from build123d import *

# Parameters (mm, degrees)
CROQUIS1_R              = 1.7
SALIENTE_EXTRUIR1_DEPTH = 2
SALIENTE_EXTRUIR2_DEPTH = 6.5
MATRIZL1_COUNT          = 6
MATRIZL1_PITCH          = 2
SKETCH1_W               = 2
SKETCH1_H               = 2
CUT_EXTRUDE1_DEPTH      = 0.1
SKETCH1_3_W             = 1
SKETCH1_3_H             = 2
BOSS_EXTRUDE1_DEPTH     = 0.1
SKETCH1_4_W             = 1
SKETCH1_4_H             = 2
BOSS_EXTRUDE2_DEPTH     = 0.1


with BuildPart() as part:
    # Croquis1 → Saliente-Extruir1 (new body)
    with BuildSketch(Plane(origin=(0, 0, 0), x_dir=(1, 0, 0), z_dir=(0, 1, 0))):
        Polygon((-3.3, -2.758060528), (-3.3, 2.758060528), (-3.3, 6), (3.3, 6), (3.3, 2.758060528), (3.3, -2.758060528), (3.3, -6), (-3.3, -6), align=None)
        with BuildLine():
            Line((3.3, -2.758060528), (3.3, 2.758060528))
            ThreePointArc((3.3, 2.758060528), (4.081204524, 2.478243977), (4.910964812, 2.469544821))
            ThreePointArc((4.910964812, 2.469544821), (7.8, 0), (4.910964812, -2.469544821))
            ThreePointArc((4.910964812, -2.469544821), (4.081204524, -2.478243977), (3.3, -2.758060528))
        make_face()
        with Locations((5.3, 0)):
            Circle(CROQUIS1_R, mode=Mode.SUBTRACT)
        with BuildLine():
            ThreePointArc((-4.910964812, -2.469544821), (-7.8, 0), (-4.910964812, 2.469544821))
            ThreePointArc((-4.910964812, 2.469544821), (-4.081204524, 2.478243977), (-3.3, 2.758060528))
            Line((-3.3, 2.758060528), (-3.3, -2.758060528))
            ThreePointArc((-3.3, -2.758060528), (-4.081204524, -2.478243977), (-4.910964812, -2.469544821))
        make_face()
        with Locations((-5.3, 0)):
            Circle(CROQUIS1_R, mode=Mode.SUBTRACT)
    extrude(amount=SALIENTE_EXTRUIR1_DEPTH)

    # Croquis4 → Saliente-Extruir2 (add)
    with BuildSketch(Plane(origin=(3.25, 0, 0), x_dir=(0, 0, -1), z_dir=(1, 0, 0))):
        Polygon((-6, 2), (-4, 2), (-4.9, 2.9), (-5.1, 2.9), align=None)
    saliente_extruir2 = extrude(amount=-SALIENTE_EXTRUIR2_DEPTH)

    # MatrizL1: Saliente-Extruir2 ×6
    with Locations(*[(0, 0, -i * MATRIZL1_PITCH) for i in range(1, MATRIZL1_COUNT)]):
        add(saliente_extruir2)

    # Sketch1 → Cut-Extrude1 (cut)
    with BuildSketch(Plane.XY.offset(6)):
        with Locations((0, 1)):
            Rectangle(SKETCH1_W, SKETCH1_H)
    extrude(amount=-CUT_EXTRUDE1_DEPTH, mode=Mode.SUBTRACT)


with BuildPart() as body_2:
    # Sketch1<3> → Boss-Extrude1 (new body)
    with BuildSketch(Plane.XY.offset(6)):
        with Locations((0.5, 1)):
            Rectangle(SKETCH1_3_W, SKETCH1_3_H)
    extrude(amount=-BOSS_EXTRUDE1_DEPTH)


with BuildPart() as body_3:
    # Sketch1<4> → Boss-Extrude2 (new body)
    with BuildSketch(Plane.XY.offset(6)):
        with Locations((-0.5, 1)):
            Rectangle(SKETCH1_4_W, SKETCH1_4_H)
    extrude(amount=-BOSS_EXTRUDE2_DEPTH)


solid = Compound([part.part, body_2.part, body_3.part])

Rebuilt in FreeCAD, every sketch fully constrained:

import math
import FreeCAD as App
import Part
import Sketcher
from FreeCAD import Vector


def add_polygon(sketch, points):
    """Adds a closed chain of lines whose ends are joined by coincident constraints."""
    first, n = sketch.GeometryCount, len(points)
    for a, b in zip(points, points[1:] + points[:1]):
        sketch.addGeometry(Part.LineSegment(App.Vector(*a, 0), App.Vector(*b, 0)), False)
    for i in range(n):
        sketch.addConstraint(Sketcher.Constraint("Coincident", first + i, 2, first + (i + 1) % n, 1))

doc = App.newDocument("Part")
body = doc.addObject("PartDesign::Body", "Body")

sketch1 = doc.addObject("Sketcher::SketchObject", "Sketch")
body.addObject(sketch1)
sketch1.AttachmentSupport = (doc.XZ_Plane, [""])
sketch1.MapMode = "FlatFace"
sketch1.addGeometry([
    Part.LineSegment(Vector(-3.3, -6, 0), Vector(-3.3, -2.8, 0)),
    Part.ArcOfCircle(Part.Circle(Vector(-4.5, -4.9, 0), Vector(0, 0, 1), 2.5), math.radians(61), math.radians(99)),
    Part.ArcOfCircle(Part.Circle(Vector(-5.3, 0, 0), Vector(0, 0, 1), 2.5), math.radians(81), math.radians(279)),
    Part.ArcOfCircle(Part.Circle(Vector(-4.5, 4.9, 0), Vector(0, 0, 1), 2.5), math.radians(-99), math.radians(-61)),
    Part.LineSegment(Vector(-3.3, 2.8, 0), Vector(-3.3, 6, 0)),
    Part.LineSegment(Vector(-3.3, 6, 0), Vector(3.3, 6, 0)),
    Part.LineSegment(Vector(3.3, 6, 0), Vector(3.3, 2.8, 0)),
    Part.ArcOfCircle(Part.Circle(Vector(4.5, 4.9, 0), Vector(0, 0, 1), 2.5), math.radians(-119), math.radians(-81)),
    Part.ArcOfCircle(Part.Circle(Vector(5.3, 0, 0), Vector(0, 0, 1), 2.5), math.radians(-99), math.radians(99)),
    Part.ArcOfCircle(Part.Circle(Vector(4.5, -4.9, 0), Vector(0, 0, 1), 2.5), math.radians(81), math.radians(119)),
    Part.LineSegment(Vector(3.3, -2.8, 0), Vector(3.3, -6, 0)),
    Part.LineSegment(Vector(3.3, -6, 0), Vector(-3.3, -6, 0)),
    Part.Circle(Vector(5.3, 0, 0), Vector(0, 0, 1), 1.7),
    Part.Circle(Vector(-5.3, 0, 0), Vector(0, 0, 1), 1.7),
], False)
sketch1.addConstraint([
    Sketcher.Constraint("Coincident", 0, 2, 1, 1),
    Sketcher.Constraint("Tangent", 1, 2, 2, 2),
    Sketcher.Constraint("Tangent", 2, 1, 3, 1),
    Sketcher.Constraint("Coincident", 3, 2, 4, 1),
    Sketcher.Constraint("Coincident", 4, 2, 5, 1),
    Sketcher.Constraint("Coincident", 5, 2, 6, 1),
    Sketcher.Constraint("Coincident", 6, 2, 7, 1),
    Sketcher.Constraint("Tangent", 7, 2, 8, 2),
    Sketcher.Constraint("Tangent", 8, 1, 9, 1),
    Sketcher.Constraint("Coincident", 9, 2, 10, 1),
    Sketcher.Constraint("Coincident", 10, 2, 11, 1),
    Sketcher.Constraint("Coincident", 11, 2, 0, 1),
    Sketcher.Constraint("Vertical", 0),
    Sketcher.Constraint("Vertical", 4),
    Sketcher.Constraint("Horizontal", 5),
    Sketcher.Constraint("Vertical", 6),
    Sketcher.Constraint("Vertical", 10),
    Sketcher.Constraint("Horizontal", 11),
    Sketcher.Constraint("Coincident", 12, 3, 8, 3),
    Sketcher.Constraint("Coincident", 13, 3, 2, 3),
    Sketcher.Constraint("Equal", 1, 2),
    Sketcher.Constraint("Equal", 2, 3),
    Sketcher.Constraint("Equal", 3, 7),
    Sketcher.Constraint("Equal", 7, 8),
    Sketcher.Constraint("Equal", 8, 9),
    Sketcher.Constraint("Equal", 12, 13),
    Sketcher.Constraint("Symmetric", 1, 3, 7, 3, -1, 1),
    Sketcher.Constraint("Symmetric", 3, 3, 9, 3, -1, 1),
    Sketcher.Constraint("Symmetric", 4, 2, 10, 2, -1, 1),
    Sketcher.Constraint("Symmetric", 3, 3, 7, 3, -2),
    Sketcher.Constraint("Horizontal", 3, 2, 6, 2),
    Sketcher.Constraint("Horizontal", 0, 2, 9, 2),
    Sketcher.Constraint("Diameter", 12, 3.4),
    Sketcher.Constraint("Radius", 1, 2.5),
    Sketcher.Constraint("DistanceX", 5, 1, 5, 2, 6.6),
    Sketcher.Constraint("DistanceY", -1, 1, 4, 2, 6.0),
    Sketcher.Constraint("DistanceX", 2, 3, 0, 2, 2.0),
    Sketcher.Constraint("DistanceY", 0, 1, 0, 2, 3.241939),
])
pad1 = doc.addObject("PartDesign::Pad", "Pad")
body.addObject(pad1)
pad1.Profile = sketch1
pad1.Length = 2
pad1.Reversed = True

sketch2 = doc.addObject("Sketcher::SketchObject", "Sketch001")
body.addObject(sketch2)
sketch2.AttachmentSupport = (doc.YZ_Plane, [""])
sketch2.MapMode = "FlatFace"
sketch2.AttachmentOffset = App.Placement(Vector(0, 0, 3.25), App.Rotation())
add_polygon(sketch2, [(2, 6), (2, 4), (2.9, 4.9), (2.9, 5.1)])
sketch2.addConstraint([
    Sketcher.Constraint("Vertical", 0),
    Sketcher.Constraint("Vertical", 2),
    Sketcher.Constraint("Perpendicular", 1, 3),
    Sketcher.Constraint("Equal", 1, 3),
    Sketcher.Constraint("DistanceY", 0, 2, 0, 1, 2.0),
    Sketcher.Constraint("DistanceY", 2, 1, 2, 2, 0.2),
    Sketcher.Constraint("DistanceX", -1, 1, 0, 2, 2.0),
    Sketcher.Constraint("DistanceY", -1, 1, 0, 2, 4.0),
])
pad2 = doc.addObject("PartDesign::Pad", "Pad001")
body.addObject(pad2)
pad2.Profile = sketch2
pad2.Length = 6.5
pad2.Reversed = True
doc.recompute()

linearpattern = doc.addObject("PartDesign::LinearPattern", "LinearPattern")
body.addObject(linearpattern)
linearpattern.Originals = [pad2]
linearpattern.Direction = (doc.Z_Axis, [""])
linearpattern.Mode = "offset"
linearpattern.Offset = 2
linearpattern.Occurrences = 6
linearpattern.Reversed = True
body.Tip = linearpattern

sketch3 = doc.addObject("Sketcher::SketchObject", "Sketch002")
body.addObject(sketch3)
sketch3.AttachmentSupport = (doc.XY_Plane, [""])
sketch3.MapMode = "FlatFace"
sketch3.AttachmentOffset = App.Placement(Vector(0, 0, 6), App.Rotation())
add_polygon(sketch3, [(-1, 2), (-1, 0), (1, 0), (1, 2)])
sketch3.addConstraint([
    Sketcher.Constraint("Vertical", 0),
    Sketcher.Constraint("Horizontal", 1),
    Sketcher.Constraint("Vertical", 2),
    Sketcher.Constraint("Horizontal", 3),
    Sketcher.Constraint("Symmetric", 0, 2, 1, 2, -1, 1),
    Sketcher.Constraint("Equal", 3, 0),
    Sketcher.Constraint("DistanceX", 1, 1, 1, 2, 2.0),
])
pocket1 = doc.addObject("PartDesign::Pocket", "Pocket")
body.addObject(pocket1)
pocket1.Profile = sketch3
pocket1.Length = 0.1
body2 = doc.addObject("PartDesign::Body", "Body001")

sketch4 = doc.addObject("Sketcher::SketchObject", "Sketch003")
body2.addObject(sketch4)
sketch4.AttachmentSupport = (doc.getObject("XY_Plane001"), [""])
sketch4.MapMode = "FlatFace"
sketch4.AttachmentOffset = App.Placement(Vector(0, 0, 6), App.Rotation())
add_polygon(sketch4, [(0, 2), (0, 0), (1, 0), (1, 2)])
sketch4.addConstraint([
    Sketcher.Constraint("Vertical", 0),
    Sketcher.Constraint("Horizontal", 1),
    Sketcher.Constraint("Vertical", 2),
    Sketcher.Constraint("Horizontal", 3),
    Sketcher.Constraint("Coincident", 0, 2, -1, 1),
    Sketcher.Constraint("DistanceX", 1, 1, 1, 2, 1.0),
    Sketcher.Constraint("DistanceY", 0, 2, 0, 1, 2.0),
])
pad3 = doc.addObject("PartDesign::Pad", "Pad002")
body2.addObject(pad3)
pad3.Profile = sketch4
pad3.Length = 0.1
pad3.Reversed = True
body3 = doc.addObject("PartDesign::Body", "Body002")

sketch5 = doc.addObject("Sketcher::SketchObject", "Sketch004")
body3.addObject(sketch5)
sketch5.AttachmentSupport = (doc.getObject("XY_Plane002"), [""])
sketch5.MapMode = "FlatFace"
sketch5.AttachmentOffset = App.Placement(Vector(0, 0, 6), App.Rotation())
add_polygon(sketch5, [(-1, 2), (-1, 0), (0, 0), (0, 2)])
sketch5.addConstraint([
    Sketcher.Constraint("Vertical", 0),
    Sketcher.Constraint("Horizontal", 1),
    Sketcher.Constraint("Vertical", 2),
    Sketcher.Constraint("Horizontal", 3),
    Sketcher.Constraint("Coincident", 1, 2, -1, 1),
    Sketcher.Constraint("DistanceX", 1, 1, 1, 2, 1.0),
    Sketcher.Constraint("DistanceY", 0, 2, 0, 1, 2.0),
])
pad4 = doc.addObject("PartDesign::Pad", "Pad003")
body3.addObject(pad4)
pad4.Profile = sketch5
pad4.Length = 0.1
pad4.Reversed = True

doc.recompute()
